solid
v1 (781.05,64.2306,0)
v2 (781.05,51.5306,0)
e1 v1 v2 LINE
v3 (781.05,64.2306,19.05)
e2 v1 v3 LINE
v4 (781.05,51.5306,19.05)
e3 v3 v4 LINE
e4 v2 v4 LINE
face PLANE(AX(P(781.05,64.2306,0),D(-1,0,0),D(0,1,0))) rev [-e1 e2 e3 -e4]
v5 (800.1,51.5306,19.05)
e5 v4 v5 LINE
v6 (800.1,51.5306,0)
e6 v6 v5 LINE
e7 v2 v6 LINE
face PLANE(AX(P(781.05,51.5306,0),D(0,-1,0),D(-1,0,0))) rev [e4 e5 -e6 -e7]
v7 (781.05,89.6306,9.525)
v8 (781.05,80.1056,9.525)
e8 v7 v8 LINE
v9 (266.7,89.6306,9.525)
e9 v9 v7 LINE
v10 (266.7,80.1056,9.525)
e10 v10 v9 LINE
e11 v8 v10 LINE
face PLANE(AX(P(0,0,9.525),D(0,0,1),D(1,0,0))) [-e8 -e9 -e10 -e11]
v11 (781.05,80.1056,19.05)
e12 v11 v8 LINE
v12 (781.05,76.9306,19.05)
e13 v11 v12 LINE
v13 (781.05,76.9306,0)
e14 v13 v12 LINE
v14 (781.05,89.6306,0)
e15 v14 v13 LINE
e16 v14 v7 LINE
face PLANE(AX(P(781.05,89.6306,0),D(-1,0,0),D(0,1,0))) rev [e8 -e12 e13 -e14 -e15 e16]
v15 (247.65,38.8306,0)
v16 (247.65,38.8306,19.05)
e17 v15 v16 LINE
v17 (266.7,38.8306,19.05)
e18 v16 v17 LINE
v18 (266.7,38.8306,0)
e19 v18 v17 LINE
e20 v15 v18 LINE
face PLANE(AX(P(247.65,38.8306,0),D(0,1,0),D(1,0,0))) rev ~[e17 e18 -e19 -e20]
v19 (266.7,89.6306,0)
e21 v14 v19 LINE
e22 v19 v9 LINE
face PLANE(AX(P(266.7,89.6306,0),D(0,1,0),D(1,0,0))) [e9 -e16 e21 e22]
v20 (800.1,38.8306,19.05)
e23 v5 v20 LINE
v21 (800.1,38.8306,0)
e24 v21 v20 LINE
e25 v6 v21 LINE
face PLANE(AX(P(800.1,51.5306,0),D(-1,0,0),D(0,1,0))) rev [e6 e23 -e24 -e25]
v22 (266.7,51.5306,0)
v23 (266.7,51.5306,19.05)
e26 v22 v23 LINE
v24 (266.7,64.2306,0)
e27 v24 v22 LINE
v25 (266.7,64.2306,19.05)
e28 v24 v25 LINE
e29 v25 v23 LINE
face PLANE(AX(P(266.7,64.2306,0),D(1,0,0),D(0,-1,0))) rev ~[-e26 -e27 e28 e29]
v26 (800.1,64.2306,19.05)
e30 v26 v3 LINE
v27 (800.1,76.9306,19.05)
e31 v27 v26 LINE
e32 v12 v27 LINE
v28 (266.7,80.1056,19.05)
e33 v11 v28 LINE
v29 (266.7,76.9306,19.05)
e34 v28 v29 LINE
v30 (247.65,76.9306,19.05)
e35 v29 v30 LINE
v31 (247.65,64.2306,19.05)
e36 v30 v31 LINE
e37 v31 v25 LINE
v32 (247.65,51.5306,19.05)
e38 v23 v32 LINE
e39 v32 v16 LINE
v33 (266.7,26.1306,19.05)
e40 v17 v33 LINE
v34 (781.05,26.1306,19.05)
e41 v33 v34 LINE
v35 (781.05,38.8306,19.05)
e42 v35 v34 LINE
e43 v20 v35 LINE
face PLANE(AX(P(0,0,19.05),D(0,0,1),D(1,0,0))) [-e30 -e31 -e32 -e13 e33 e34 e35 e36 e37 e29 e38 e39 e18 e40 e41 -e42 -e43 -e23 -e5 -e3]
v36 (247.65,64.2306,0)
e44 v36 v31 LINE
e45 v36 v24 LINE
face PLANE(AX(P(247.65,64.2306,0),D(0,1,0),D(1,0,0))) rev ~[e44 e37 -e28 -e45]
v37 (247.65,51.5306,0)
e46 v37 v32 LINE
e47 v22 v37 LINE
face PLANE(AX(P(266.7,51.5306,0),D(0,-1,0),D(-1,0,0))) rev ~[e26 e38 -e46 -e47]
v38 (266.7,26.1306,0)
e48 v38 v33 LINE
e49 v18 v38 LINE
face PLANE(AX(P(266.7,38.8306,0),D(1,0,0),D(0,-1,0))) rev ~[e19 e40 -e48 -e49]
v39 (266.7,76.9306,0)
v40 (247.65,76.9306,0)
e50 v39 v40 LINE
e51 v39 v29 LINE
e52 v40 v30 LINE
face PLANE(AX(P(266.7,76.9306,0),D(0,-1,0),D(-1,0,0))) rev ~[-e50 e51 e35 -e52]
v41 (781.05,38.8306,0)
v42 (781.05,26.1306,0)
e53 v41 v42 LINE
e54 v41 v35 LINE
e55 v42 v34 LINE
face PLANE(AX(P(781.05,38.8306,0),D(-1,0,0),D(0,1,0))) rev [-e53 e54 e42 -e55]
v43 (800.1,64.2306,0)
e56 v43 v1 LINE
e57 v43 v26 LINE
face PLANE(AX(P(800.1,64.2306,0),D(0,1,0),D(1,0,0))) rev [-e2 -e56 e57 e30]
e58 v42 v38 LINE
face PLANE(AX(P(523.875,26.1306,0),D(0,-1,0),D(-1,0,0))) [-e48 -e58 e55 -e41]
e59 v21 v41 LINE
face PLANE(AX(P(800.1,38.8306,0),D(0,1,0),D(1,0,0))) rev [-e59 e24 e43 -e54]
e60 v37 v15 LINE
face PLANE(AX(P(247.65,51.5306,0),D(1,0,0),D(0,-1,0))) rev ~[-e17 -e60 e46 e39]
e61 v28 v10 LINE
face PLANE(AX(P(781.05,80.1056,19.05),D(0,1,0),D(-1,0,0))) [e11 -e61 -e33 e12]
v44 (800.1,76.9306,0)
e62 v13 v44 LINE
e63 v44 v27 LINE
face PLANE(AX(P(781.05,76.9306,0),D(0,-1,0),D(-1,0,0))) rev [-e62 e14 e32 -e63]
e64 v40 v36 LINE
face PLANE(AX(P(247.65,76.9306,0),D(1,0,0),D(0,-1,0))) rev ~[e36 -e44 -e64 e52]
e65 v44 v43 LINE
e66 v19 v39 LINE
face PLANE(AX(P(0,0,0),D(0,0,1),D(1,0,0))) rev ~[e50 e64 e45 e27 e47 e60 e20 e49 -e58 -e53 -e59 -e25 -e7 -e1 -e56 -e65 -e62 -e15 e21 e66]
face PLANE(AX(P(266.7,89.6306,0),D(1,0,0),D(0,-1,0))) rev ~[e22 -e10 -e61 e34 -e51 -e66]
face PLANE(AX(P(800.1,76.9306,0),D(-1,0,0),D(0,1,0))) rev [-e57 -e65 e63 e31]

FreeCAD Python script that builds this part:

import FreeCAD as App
import Part
import Sketcher
Q = App.Units.Quantity

doc = App.newDocument("Part")
body = doc.addObject("PartDesign::Body", "Body")

sketch1 = body.newObject("Sketcher::SketchObject", "Sketch")
sketch1.AttachmentSupport = (doc.getObject("XY_Plane"), [""])
sketch1.MapMode = "FlatFace"
sketch1.addGeometry(Part.LineSegment(App.Vector(524, 90, 0), App.Vector(267, 90, 0)), False)
sketch1.addGeometry(Part.LineSegment(App.Vector(267, 90, 0), App.Vector(267, 77, 0)), False)
sketch1.addGeometry(Part.LineSegment(App.Vector(267, 77, 0), App.Vector(248, 77, 0)), False)
sketch1.addGeometry(Part.LineSegment(App.Vector(248, 77, 0), App.Vector(248, 64, 0)), False)
sketch1.addGeometry(Part.LineSegment(App.Vector(248, 64, 0), App.Vector(267, 64, 0)), False)
sketch1.addGeometry(Part.LineSegment(App.Vector(267, 64, 0), App.Vector(267, 52, 0)), False)
sketch1.addGeometry(Part.LineSegment(App.Vector(267, 52, 0), App.Vector(248, 52, 0)), False)
sketch1.addGeometry(Part.LineSegment(App.Vector(248, 52, 0), App.Vector(248, 39, 0)), False)
sketch1.addGeometry(Part.LineSegment(App.Vector(248, 39, 0), App.Vector(267, 39, 0)), False)
sketch1.addGeometry(Part.LineSegment(App.Vector(267, 39, 0), App.Vector(267, 26, 0)), False)
sketch1.addGeometry(Part.LineSegment(App.Vector(267, 26, 0), App.Vector(524, 26, 0)), False)
sketch1.addGeometry(Part.LineSegment(App.Vector(524, 26, 0), App.Vector(524, 90, 0)), False)
sketch1.addConstraint(Sketcher.Constraint("Coincident", 0, 2, 1, 1))
sketch1.addConstraint(Sketcher.Constraint("Coincident", 1, 2, 2, 1))
sketch1.addConstraint(Sketcher.Constraint("Coincident", 2, 2, 3, 1))
sketch1.addConstraint(Sketcher.Constraint("Coincident", 3, 2, 4, 1))
sketch1.addConstraint(Sketcher.Constraint("Coincident", 4, 2, 5, 1))
sketch1.addConstraint(Sketcher.Constraint("Coincident", 5, 2, 6, 1))
sketch1.addConstraint(Sketcher.Constraint("Coincident", 6, 2, 7, 1))
sketch1.addConstraint(Sketcher.Constraint("Coincident", 7, 2, 8, 1))
sketch1.addConstraint(Sketcher.Constraint("Coincident", 8, 2, 9, 1))
sketch1.addConstraint(Sketcher.Constraint("Coincident", 9, 2, 10, 1))
sketch1.addConstraint(Sketcher.Constraint("Coincident", 10, 2, 11, 1))
sketch1.addConstraint(Sketcher.Constraint("Coincident", 11, 2, 0, 1))
sketch1.addConstraint(Sketcher.Constraint("Horizontal", 0))
sketch1.addConstraint(Sketcher.Constraint("Vertical", 1))
sketch1.addConstraint(Sketcher.Constraint("Horizontal", 2))
sketch1.addConstraint(Sketcher.Constraint("Vertical", 3))
sketch1.addConstraint(Sketcher.Constraint("Horizontal", 4))
sketch1.addConstraint(Sketcher.Constraint("Vertical", 5))
sketch1.addConstraint(Sketcher.Constraint("Horizontal", 6))
sketch1.addConstraint(Sketcher.Constraint("Vertical", 7))
sketch1.addConstraint(Sketcher.Constraint("Horizontal", 8))
sketch1.addConstraint(Sketcher.Constraint("Vertical", 9))
sketch1.addConstraint(Sketcher.Constraint("Horizontal", 10))
sketch1.addConstraint(Sketcher.Constraint("Vertical", 11))
sketch1.addConstraint(Sketcher.Constraint("Vertical", 1, 2, 4, 2))
sketch1.addConstraint(Sketcher.Constraint("Vertical", 3, 2, 6, 2))
sketch1.addConstraint(Sketcher.Constraint("Vertical", 5, 2, 8, 2))
sketch1.addConstraint(Sketcher.Constraint("Equal", 1, 3))
sketch1.addConstraint(Sketcher.Constraint("Equal", 3, 5))
sketch1.addConstraint(Sketcher.Constraint("Equal", 5, 7))
sketch1.addConstraint(Sketcher.Constraint("Equal", 7, 9))
sketch1.addConstraint(Sketcher.Constraint("DistanceY", 1, 2, 1, 1, Q("0.5 in")))
sketch1.addConstraint(Sketcher.Constraint("DistanceX", 2, 2, 2, 1, Q("0.75 in")))
sketch1.addConstraint(Sketcher.Constraint("DistanceX", 0, 2, 0, 1, Q("10.125 in")))
sketch1.addConstraint(Sketcher.Constraint("DistanceX", -1, 1, 0, 2, Q("10.5 in")))
sketch1.addConstraint(Sketcher.Constraint("DistanceY", -1, 1, 0, 2, 89.6306))
pad1 = body.newObject("PartDesign::Pad", "Pad")
pad1.Profile = sketch1
pad1.Length = Q("0.75 in")
doc.recompute()

datumplane = body.newObject("PartDesign::Plane", "DatumPlane")
datumplane.AttachmentSupport = (doc.getObject("YZ_Plane"), [""])
datumplane.MapMode = "FlatFace"
datumplane.AttachmentOffset = App.Placement(App.Vector(0, 0, 20.625 * 25.4), App.Rotation())
mirrored = body.newObject("PartDesign::Mirrored", "Mirrored")
mirrored.Originals = [pad1]
mirrored.MirrorPlane = (datumplane, [""])
body.Tip = mirrored

sketch2 = body.newObject("Sketcher::SketchObject", "Sketch001")
sketch2.AttachmentSupport = (doc.getObject("XY_Plane"), [""])
sketch2.MapMode = "FlatFace"
sketch2.AttachmentOffset = App.Placement(App.Vector(0, 0, 0.75 * 25.4), App.Rotation())
sketch2.addGeometry(Part.LineSegment(App.Vector(781, 90, 0), App.Vector(267, 90, 0)), False)
sketch2.addGeometry(Part.LineSegment(App.Vector(267, 90, 0), App.Vector(267, 80, 0)), False)
sketch2.addGeometry(Part.LineSegment(App.Vector(267, 80, 0), App.Vector(781, 80, 0)), False)
sketch2.addGeometry(Part.LineSegment(App.Vector(781, 80, 0), App.Vector(781, 90, 0)), False)
sketch2.addConstraint(Sketcher.Constraint("Coincident", 0, 2, 1, 1))
sketch2.addConstraint(Sketcher.Constraint("Coincident", 1, 2, 2, 1))
sketch2.addConstraint(Sketcher.Constraint("Coincident", 2, 2, 3, 1))
sketch2.addConstraint(Sketcher.Constraint("Coincident", 3, 2, 0, 1))
sketch2.addConstraint(Sketcher.Constraint("Horizontal", 0))
sketch2.addConstraint(Sketcher.Constraint("Vertical", 1))
sketch2.addConstraint(Sketcher.Constraint("Horizontal", 2))
sketch2.addConstraint(Sketcher.Constraint("Vertical", 3))
sketch2.addConstraint(Sketcher.Constraint("DistanceY", 1, 2, 1, 1, Q("0.375 in")))
sketch2.addConstraint(Sketcher.Constraint("DistanceX", 0, 2, 0, 1, Q("20.25 in")))
sketch2.addConstraint(Sketcher.Constraint("DistanceX", -1, 1, 0, 2, Q("10.5 in")))
sketch2.addConstraint(Sketcher.Constraint("DistanceY", -1, 1, 0, 2, 89.6306))
pocket1 = body.newObject("PartDesign::Pocket", "Pocket")
pocket1.Profile = sketch2
pocket1.Length = Q("0.375 in")

doc.recompute()
